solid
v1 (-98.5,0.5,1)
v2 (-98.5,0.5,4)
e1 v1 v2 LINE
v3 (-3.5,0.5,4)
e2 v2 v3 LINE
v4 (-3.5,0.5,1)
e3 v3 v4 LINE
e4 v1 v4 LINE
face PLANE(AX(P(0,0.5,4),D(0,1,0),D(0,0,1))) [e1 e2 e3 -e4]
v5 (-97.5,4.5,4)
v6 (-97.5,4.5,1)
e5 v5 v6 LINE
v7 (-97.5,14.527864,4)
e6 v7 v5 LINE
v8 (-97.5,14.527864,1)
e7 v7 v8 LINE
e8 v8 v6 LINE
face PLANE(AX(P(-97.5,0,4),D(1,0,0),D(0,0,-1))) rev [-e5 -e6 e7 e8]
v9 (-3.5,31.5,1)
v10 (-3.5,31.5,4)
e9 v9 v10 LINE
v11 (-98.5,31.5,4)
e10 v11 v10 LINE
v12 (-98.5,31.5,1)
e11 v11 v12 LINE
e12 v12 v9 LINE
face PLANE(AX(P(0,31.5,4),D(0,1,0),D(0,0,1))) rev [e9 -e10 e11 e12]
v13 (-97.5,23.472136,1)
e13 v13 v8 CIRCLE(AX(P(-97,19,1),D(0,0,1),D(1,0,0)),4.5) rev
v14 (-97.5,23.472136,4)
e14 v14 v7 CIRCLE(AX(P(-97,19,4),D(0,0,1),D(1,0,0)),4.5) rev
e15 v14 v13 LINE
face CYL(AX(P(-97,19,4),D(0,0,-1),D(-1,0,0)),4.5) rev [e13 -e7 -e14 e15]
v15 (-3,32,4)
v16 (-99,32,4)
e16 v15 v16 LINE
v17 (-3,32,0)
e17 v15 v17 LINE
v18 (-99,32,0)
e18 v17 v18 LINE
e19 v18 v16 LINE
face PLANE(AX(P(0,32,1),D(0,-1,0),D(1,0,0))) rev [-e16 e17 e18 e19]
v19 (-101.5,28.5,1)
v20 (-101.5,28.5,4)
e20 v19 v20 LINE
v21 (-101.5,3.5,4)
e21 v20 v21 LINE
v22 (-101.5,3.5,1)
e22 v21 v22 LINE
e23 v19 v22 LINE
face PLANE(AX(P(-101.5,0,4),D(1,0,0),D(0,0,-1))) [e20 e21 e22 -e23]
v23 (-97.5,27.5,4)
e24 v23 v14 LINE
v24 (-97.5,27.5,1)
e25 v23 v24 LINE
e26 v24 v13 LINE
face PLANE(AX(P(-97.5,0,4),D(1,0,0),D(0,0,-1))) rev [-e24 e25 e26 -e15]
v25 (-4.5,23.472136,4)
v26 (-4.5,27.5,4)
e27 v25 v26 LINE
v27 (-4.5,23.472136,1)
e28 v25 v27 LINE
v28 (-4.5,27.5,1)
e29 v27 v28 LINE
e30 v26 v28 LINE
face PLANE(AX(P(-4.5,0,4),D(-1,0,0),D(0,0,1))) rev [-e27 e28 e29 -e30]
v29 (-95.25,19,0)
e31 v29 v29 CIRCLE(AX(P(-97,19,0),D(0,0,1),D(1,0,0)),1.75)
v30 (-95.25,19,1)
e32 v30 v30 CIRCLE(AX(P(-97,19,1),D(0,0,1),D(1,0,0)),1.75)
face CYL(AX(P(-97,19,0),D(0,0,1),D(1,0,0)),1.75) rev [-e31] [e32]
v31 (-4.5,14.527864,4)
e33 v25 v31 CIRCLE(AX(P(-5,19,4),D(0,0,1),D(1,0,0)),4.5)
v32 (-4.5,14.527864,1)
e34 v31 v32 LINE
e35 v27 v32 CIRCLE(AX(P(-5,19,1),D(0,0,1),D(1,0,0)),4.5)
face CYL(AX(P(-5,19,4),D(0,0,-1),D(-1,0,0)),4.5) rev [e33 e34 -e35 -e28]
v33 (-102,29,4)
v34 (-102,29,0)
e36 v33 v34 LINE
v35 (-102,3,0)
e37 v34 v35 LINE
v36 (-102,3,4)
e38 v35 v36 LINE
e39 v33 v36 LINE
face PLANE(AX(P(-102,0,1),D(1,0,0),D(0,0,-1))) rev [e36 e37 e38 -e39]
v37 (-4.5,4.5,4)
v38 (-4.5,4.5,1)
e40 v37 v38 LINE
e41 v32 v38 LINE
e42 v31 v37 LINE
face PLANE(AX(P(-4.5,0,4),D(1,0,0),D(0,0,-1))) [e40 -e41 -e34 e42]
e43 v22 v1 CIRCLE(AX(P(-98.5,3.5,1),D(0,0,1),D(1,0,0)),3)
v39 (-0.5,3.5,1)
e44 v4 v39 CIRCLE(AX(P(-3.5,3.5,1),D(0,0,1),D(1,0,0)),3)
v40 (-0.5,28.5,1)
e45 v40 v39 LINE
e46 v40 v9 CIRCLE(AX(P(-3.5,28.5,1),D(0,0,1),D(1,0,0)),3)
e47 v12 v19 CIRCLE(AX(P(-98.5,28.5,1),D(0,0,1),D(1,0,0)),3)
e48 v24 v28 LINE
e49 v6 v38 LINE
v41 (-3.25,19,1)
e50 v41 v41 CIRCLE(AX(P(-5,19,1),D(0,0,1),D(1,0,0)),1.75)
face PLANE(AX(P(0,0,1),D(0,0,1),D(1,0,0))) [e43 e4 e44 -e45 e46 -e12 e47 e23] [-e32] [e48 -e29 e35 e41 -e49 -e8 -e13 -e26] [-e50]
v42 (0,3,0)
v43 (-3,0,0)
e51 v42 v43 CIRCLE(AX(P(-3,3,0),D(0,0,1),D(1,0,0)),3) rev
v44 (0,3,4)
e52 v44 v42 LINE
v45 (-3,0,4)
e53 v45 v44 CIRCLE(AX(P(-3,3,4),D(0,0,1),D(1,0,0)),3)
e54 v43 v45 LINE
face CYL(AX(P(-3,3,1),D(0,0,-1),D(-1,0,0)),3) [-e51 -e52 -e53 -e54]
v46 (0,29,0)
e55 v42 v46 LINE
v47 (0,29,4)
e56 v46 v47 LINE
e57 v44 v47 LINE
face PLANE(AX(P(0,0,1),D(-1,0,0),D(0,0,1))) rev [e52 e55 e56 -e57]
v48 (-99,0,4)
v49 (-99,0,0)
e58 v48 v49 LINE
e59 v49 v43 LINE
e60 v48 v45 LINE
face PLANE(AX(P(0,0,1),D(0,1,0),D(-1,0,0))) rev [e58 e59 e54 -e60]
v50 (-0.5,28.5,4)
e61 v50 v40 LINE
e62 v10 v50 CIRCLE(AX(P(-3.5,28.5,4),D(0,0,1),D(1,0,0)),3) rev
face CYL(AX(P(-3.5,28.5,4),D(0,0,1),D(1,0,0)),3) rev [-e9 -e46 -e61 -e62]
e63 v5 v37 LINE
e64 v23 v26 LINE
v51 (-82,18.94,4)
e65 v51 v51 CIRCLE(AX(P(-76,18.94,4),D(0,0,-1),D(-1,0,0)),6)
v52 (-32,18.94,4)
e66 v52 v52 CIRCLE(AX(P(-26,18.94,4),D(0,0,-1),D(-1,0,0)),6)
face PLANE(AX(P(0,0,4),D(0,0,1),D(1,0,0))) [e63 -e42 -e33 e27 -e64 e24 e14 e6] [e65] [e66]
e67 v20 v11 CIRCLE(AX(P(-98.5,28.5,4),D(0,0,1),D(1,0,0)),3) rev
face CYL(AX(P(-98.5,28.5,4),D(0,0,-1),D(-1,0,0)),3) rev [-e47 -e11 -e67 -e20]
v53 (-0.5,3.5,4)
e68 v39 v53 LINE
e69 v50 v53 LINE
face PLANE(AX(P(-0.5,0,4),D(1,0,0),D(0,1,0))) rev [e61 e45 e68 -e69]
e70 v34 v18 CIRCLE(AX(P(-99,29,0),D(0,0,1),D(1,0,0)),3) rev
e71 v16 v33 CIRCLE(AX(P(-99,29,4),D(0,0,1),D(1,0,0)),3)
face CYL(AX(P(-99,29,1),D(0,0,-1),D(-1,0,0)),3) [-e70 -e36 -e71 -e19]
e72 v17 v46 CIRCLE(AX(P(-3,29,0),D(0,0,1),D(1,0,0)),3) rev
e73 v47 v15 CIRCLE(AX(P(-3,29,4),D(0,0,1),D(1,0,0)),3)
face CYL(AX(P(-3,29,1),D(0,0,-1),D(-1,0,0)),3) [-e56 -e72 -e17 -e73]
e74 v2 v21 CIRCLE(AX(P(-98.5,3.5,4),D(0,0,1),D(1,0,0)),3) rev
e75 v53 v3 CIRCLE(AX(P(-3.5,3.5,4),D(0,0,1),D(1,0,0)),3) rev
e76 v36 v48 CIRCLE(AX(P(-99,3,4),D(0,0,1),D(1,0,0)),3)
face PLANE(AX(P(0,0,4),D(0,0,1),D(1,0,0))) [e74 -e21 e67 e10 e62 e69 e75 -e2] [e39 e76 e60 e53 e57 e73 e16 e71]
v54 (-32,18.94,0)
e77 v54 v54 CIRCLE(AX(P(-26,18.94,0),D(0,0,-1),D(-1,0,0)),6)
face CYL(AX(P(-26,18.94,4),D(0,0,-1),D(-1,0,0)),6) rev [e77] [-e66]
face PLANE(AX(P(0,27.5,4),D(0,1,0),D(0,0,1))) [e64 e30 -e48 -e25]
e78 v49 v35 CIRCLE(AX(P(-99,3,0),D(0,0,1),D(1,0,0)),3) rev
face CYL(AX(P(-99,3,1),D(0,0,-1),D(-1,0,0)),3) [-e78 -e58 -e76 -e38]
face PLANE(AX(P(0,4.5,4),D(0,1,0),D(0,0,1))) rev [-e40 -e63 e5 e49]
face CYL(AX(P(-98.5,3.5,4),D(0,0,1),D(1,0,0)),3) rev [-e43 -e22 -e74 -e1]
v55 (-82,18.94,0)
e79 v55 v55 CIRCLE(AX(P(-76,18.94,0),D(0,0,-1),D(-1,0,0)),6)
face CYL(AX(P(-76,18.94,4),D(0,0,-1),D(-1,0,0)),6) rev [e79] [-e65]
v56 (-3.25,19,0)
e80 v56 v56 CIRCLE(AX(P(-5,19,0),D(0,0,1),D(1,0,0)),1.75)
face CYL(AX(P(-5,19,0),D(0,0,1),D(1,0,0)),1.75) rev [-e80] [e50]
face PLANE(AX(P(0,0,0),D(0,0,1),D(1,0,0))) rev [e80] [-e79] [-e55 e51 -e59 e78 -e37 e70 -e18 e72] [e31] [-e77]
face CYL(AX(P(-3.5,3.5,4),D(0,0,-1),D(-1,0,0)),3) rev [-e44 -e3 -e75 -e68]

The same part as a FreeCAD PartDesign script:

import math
import FreeCAD as App
import Part
import Sketcher

V = App.Vector


def edges_at(feature, points):
    """Names of the edges that pass closest to the given points."""
    edges = feature.Shape.Edges
    near = lambda p: min(range(len(edges)), key=lambda i: edges[i].distToShape(Part.Vertex(*p))[0])
    return sorted({f"Edge{near(p) + 1}" for p in points})

doc = App.newDocument("Part")
body = doc.addObject("PartDesign::Body", "Body")

sketch1 = body.newObject("Sketcher::SketchObject", "Sketch")
sketch1.AttachmentSupport = (doc.getObject("XY_Plane"), [""])
sketch1.MapMode = "FlatFace"
sketch1.addGeometry([
    Part.LineSegment(V(-102, 32, 0), V(-102, 0, 0)),
    Part.LineSegment(V(-102, 0, 0), V(0, 0, 0)),
    Part.LineSegment(V(0, 0, 0), V(0, 32, 0)),
    Part.LineSegment(V(0, 32, 0), V(-102, 32, 0)),
], False)
sketch1.addConstraint([
    Sketcher.Constraint("Coincident", 0, 2, 1, 1),
    Sketcher.Constraint("Coincident", 1, 2, 2, 1),
    Sketcher.Constraint("Coincident", 2, 2, 3, 1),
    Sketcher.Constraint("Coincident", 3, 2, 0, 1),
    Sketcher.Constraint("Vertical", 0),
    Sketcher.Constraint("Horizontal", 1),
    Sketcher.Constraint("Vertical", 2),
    Sketcher.Constraint("Horizontal", 3),
    Sketcher.Constraint("Coincident", 1, 2, -1, 1),
    Sketcher.Constraint("DistanceX", 1, 1, 1, 2, 102.0),
    Sketcher.Constraint("DistanceY", 0, 2, 0, 1, 32.0),
])
pad1 = body.newObject("PartDesign::Pad", "Pad")
pad1.Profile = sketch1
pad1.Length = 1

sketch2 = body.newObject("Sketcher::SketchObject", "Sketch001")
sketch2.AttachmentSupport = (doc.getObject("XY_Plane"), [""])
sketch2.MapMode = "FlatFace"
sketch2.AttachmentOffset = App.Placement(V(0, 0, 1), App.Rotation())
sketch2.addGeometry([
    Part.LineSegment(V(-102, 32, 0), V(-102, 0, 0)),
    Part.LineSegment(V(-102, 0, 0), V(0, 0, 0)),
    Part.LineSegment(V(0, 0, 0), V(0, 32, 0)),
    Part.LineSegment(V(0, 32, 0), V(-102, 32, 0)),
    Part.LineSegment(V(-0.5, 0.5, 0), V(-101.5, 0.5, 0)),
    Part.LineSegment(V(-101.5, 0.5, 0), V(-101.5, 31.5, 0)),
    Part.LineSegment(V(-101.5, 31.5, 0), V(-0.5, 31.5, 0)),
    Part.LineSegment(V(-0.5, 31.5, 0), V(-0.5, 0.5, 0)),
    Part.LineSegment(V(-97.5, 14.5, 0), V(-97.5, 4.5, 0)),
    Part.LineSegment(V(-97.5, 4.5, 0), V(-4.5, 4.5, 0)),
    Part.LineSegment(V(-4.5, 4.5, 0), V(-4.5, 14.5, 0)),
    Part.ArcOfCircle(Part.Circle(V(-5, 19, 0), V(0, 0, 1), 4.5), math.radians(84), math.radians(276)),
    Part.LineSegment(V(-4.5, 23.5, 0), V(-4.5, 27.5, 0)),
    Part.LineSegment(V(-4.5, 27.5, 0), V(-97.5, 27.5, 0)),
    Part.LineSegment(V(-97.5, 27.5, 0), V(-97.5, 23.5, 0)),
    Part.ArcOfCircle(Part.Circle(V(-97, 19, 0), V(0, 0, 1), 4.5), math.radians(-96), math.radians(96)),
], False)
sketch2.addConstraint([
    Sketcher.Constraint("Coincident", 0, 2, 1, 1),
    Sketcher.Constraint("Coincident", 1, 2, 2, 1),
    Sketcher.Constraint("Coincident", 2, 2, 3, 1),
    Sketcher.Constraint("Coincident", 3, 2, 0, 1),
    Sketcher.Constraint("Coincident", 4, 2, 5, 1),
    Sketcher.Constraint("Coincident", 5, 2, 6, 1),
    Sketcher.Constraint("Coincident", 6, 2, 7, 1),
    Sketcher.Constraint("Coincident", 7, 2, 4, 1),
    Sketcher.Constraint("Coincident", 8, 2, 9, 1),
    Sketcher.Constraint("Coincident", 9, 2, 10, 1),
    Sketcher.Constraint("Coincident", 10, 2, 11, 2),
    Sketcher.Constraint("Coincident", 11, 1, 12, 1),
    Sketcher.Constraint("Coincident", 12, 2, 13, 1),
    Sketcher.Constraint("Coincident", 13, 2, 14, 1),
    Sketcher.Constraint("Coincident", 14, 2, 15, 2),
    Sketcher.Constraint("Coincident", 15, 1, 8, 1),
    Sketcher.Constraint("Vertical", 0),
    Sketcher.Constraint("Horizontal", 1),
    Sketcher.Constraint("Vertical", 2),
    Sketcher.Constraint("Horizontal", 3),
    Sketcher.Constraint("Horizontal", 4),
    Sketcher.Constraint("Vertical", 5),
    Sketcher.Constraint("Horizontal", 6),
    Sketcher.Constraint("Vertical", 7),
    Sketcher.Constraint("Vertical", 8),
    Sketcher.Constraint("Horizontal", 9),
    Sketcher.Constraint("Vertical", 10),
    Sketcher.Constraint("Vertical", 12),
    Sketcher.Constraint("Horizontal", 13),
    Sketcher.Constraint("Vertical", 14),
    Sketcher.Constraint("Coincident", 1, 2, -1, 1),
    Sketcher.Constraint("Equal", 11, 15),
    Sketcher.Constraint("Horizontal", 11, 3, 15, 3),
    Sketcher.Constraint("Horizontal", 11, 1, 14, 2),
    Sketcher.Constraint("Horizontal", 10, 2, 15, 1),
    Sketcher.Constraint("Vertical", 10, 2, 11, 1),
    Sketcher.Constraint("Radius", 11, 4.5),
    Sketcher.Constraint("DistanceX", 1, 1, 1, 2, 102.0),
    Sketcher.Constraint("DistanceX", 4, 2, 4, 1, 101.0),
    Sketcher.Constraint("DistanceX", 9, 1, 9, 2, 93.0),
    Sketcher.Constraint("DistanceY", 0, 2, 0, 1, 32.0),
    Sketcher.Constraint("DistanceY", 5, 1, 5, 2, 31.0),
    Sketcher.Constraint("DistanceX", 11, 3, -1, 1, 5.0),
    Sketcher.Constraint("DistanceY", -1, 1, 11, 3, 19.0),
    Sketcher.Constraint("DistanceX", 15, 3, -1, 1, 97.0),
    Sketcher.Constraint("DistanceX", 4, 2, 8, 2, 4.0),
    Sketcher.Constraint("DistanceY", 4, 2, 8, 2, 4.0),
    Sketcher.Constraint("DistanceY", 12, 2, 6, 2, 4.0),
    Sketcher.Constraint("DistanceY", -1, 1, 4, 2, 0.5),
])
pad2 = body.newObject("PartDesign::Pad", "Pad001")
pad2.Profile = sketch2
pad2.Length = 3

sketch3 = body.newObject("Sketcher::SketchObject", "Sketch002")
sketch3.AttachmentSupport = (doc.getObject("XY_Plane"), [""])
sketch3.MapMode = "FlatFace"
sketch3.AttachmentOffset = App.Placement(V(0, 0, 1), App.Rotation())
sketch3.addGeometry([
    Part.Circle(V(-97, 19, 0), V(0, 0, 1), 1.8),
    Part.Circle(V(-5, 19, 0), V(0, 0, 1), 1.8),
], False)
sketch3.addConstraint([
    Sketcher.Constraint("Equal", 0, 1),
    Sketcher.Constraint("Horizontal", 0, 3, 1, 3),
    Sketcher.Constraint("Diameter", 0, 3.5),
    Sketcher.Constraint("DistanceX", 0, 3, -1, 1, 97.0),
    Sketcher.Constraint("DistanceY", -1, 1, 0, 3, 19.0),
    Sketcher.Constraint("DistanceX", 1, 3, -1, 1, 5.0),
])
pocket1 = body.newObject("PartDesign::Pocket", "Pocket")
pocket1.Profile = sketch3
pocket1.Type = "ThroughAll"
doc.recompute()

fillet = body.newObject("PartDesign::Fillet", "Fillet")
fillet.Base = (pocket1, edges_at(pocket1, [
    (-101.5, 31.5, 2.5),
    (-0.5, 31.5, 2.5),
    (-0.5, 0.5, 2.5),
    (-101.5, 0.5, 2.5),
    (0, 0, 2),
    (-102, 0, 2),
    (-102, 32, 2),
    (0, 32, 2),
]))
fillet.Radius = 3

sketch4 = body.newObject("Sketcher::SketchObject", "Sketch003")
sketch4.AttachmentSupport = (doc.getObject("XY_Plane"), [""])
sketch4.MapMode = "FlatFace"
sketch4.addGeometry([
    Part.Circle(V(-26, 19, 0), V(0, 0, 1), 6),
    Part.Circle(V(-76, 19, 0), V(0, 0, 1), 6),
], False)
sketch4.addConstraint([
    Sketcher.Constraint("Equal", 0, 1),
    Sketcher.Constraint("Horizontal", 0, 3, 1, 3),
    Sketcher.Constraint("Diameter", 0, 12.0),
    Sketcher.Constraint("DistanceX", 0, 3, -1, 1, 26.0),
    Sketcher.Constraint("DistanceX", 1, 3, -1, 1, 76.0),
    Sketcher.Constraint("DistanceY", -1, 1, 0, 3, 18.94),
])
pocket2 = body.newObject("PartDesign::Pocket", "Pocket001")
pocket2.Profile = sketch4
pocket2.Type = "ThroughAll"
pocket2.Reversed = True

doc.recompute()
